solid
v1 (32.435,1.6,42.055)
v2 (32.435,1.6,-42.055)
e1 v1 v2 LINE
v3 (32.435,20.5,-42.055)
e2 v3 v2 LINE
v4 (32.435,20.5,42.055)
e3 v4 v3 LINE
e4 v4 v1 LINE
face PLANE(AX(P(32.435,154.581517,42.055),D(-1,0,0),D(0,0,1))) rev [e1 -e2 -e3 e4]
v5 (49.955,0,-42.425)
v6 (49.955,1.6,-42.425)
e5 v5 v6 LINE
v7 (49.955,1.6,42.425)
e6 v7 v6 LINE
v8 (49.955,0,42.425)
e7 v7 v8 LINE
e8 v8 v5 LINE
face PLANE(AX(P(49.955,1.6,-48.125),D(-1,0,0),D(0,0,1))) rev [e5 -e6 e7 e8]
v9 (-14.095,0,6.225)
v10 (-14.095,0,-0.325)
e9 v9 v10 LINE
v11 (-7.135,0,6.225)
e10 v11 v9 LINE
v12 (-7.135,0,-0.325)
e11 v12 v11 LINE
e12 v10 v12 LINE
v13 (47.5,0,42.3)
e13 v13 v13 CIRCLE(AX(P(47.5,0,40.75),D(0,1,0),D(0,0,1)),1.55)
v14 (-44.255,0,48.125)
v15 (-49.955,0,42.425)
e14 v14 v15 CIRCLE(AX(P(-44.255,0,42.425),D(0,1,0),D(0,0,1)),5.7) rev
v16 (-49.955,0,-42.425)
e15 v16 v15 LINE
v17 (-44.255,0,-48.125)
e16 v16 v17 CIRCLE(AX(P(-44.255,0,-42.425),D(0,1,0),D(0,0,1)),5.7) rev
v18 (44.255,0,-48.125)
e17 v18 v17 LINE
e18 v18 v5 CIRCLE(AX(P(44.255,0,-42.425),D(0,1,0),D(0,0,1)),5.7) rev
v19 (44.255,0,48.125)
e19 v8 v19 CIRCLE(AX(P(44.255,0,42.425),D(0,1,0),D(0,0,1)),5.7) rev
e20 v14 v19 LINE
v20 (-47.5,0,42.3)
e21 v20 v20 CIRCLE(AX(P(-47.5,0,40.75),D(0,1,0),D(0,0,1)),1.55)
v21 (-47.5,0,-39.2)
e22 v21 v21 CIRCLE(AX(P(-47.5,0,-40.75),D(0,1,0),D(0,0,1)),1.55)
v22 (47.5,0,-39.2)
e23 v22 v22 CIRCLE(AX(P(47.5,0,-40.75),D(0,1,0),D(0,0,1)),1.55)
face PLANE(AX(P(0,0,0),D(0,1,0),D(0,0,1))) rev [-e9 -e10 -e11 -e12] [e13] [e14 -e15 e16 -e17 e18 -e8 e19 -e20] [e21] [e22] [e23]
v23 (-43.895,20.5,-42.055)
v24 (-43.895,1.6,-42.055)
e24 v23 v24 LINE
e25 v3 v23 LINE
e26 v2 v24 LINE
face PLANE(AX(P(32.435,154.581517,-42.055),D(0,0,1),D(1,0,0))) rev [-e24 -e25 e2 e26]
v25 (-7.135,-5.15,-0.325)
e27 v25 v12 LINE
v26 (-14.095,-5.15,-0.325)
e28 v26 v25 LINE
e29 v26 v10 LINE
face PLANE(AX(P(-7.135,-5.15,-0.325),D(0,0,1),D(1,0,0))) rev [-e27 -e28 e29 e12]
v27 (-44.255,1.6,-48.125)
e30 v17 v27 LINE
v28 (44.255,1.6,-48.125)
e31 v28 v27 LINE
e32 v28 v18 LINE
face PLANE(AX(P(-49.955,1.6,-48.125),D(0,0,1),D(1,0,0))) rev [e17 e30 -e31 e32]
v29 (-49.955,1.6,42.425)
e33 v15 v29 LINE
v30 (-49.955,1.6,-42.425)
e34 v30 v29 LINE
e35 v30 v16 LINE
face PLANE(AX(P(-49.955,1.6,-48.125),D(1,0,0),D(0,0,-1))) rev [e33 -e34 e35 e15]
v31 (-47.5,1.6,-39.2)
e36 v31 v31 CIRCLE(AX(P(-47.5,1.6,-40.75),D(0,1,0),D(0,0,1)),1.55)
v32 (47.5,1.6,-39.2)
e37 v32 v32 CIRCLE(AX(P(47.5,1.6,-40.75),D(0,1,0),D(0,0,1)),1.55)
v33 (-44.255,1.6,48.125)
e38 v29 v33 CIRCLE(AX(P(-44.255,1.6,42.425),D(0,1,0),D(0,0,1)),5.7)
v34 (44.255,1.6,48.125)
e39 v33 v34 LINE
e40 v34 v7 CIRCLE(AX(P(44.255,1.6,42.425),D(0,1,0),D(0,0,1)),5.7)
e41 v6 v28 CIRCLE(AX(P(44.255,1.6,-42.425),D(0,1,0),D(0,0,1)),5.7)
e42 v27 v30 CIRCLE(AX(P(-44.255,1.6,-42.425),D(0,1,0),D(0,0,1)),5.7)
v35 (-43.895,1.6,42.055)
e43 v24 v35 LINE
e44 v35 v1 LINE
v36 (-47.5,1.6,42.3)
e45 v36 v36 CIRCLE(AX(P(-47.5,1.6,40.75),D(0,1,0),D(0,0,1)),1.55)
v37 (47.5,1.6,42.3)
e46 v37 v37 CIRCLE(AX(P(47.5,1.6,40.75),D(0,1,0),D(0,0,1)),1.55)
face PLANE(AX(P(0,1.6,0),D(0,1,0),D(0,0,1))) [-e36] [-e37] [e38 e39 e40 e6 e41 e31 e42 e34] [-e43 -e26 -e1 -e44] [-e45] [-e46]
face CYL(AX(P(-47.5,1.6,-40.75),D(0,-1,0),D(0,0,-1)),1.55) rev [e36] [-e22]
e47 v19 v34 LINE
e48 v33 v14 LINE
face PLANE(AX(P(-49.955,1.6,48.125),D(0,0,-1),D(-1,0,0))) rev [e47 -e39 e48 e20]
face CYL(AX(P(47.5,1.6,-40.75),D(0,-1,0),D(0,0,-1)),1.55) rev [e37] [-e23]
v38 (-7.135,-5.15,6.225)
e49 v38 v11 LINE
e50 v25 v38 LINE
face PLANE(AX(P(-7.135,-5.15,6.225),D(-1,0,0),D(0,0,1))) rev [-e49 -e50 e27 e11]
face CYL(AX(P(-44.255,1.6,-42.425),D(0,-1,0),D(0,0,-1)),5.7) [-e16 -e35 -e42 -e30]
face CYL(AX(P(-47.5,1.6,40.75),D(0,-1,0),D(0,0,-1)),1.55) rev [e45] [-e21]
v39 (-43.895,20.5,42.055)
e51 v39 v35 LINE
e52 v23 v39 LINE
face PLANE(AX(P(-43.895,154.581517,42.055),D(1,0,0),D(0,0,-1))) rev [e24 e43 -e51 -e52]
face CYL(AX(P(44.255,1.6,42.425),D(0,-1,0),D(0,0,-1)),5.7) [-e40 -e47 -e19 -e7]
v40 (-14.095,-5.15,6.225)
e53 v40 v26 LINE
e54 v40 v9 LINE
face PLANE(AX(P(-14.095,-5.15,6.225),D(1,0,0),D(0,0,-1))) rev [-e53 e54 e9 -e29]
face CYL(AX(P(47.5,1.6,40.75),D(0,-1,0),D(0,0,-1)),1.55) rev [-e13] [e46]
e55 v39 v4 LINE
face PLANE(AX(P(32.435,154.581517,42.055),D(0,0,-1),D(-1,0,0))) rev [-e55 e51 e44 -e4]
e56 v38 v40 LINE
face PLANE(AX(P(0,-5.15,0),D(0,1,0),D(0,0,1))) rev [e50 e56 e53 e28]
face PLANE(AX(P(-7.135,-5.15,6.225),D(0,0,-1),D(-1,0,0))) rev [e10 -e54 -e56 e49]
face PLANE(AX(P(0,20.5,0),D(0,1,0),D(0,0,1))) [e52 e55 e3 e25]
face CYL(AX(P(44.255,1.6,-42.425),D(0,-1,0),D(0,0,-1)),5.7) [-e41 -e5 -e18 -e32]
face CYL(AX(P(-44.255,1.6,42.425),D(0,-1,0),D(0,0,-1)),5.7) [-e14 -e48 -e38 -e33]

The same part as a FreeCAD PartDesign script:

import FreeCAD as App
import Part
import Sketcher

V = App.Vector
Q = App.Units.Quantity


def edges_at(feature, points):
    """Names of the edges that pass closest to the given points."""
    edges = feature.Shape.Edges
    near = lambda p: min(range(len(edges)), key=lambda i: edges[i].distToShape(Part.Vertex(*p))[0])
    return sorted({f"Edge{near(p) + 1}" for p in points})


def add_polygon(sketch, points):
    """Adds a closed chain of lines whose ends are joined by coincident constraints."""
    first, n = sketch.GeometryCount, len(points)
    for a, b in zip(points, points[1:] + points[:1]):
        sketch.addGeometry(Part.LineSegment(App.Vector(*a, 0), App.Vector(*b, 0)), False)
    for i in range(n):
        sketch.addConstraint(Sketcher.Constraint("Coincident", first + i, 2, first + (i + 1) % n, 1))

doc = App.newDocument("Part")
params = doc.addObject("Spreadsheet::Sheet", "Params")
for row, (alias, value) in enumerate([
    ("sketch1_diameter", "3.1 mm"),
    ("sketch1_width", "99.91 mm"),
    ("sketch1_height", "96.25 mm"),
    ("pad1_length", "1.6 mm"),
    ("fillet_radius", "5.7 mm"),
    ("sketch2_width", "76.33 mm"),
    ("sketch2_height", "84.11 mm"),
    ("pad2_length", "18.9 mm"),
    ("sketch3_width", "6.96 mm"),
    ("sketch3_height", "6.55 mm"),
    ("pad3_length", "5.15 mm"),
], start=1):
    params.set(f"A{row}", alias)
    params.set(f"B{row}", "=" + value)
    params.setAlias(f"B{row}", alias)

body = doc.addObject("PartDesign::Body", "Body")

# Sketch on XZ plane
sketch1 = body.newObject("Sketcher::SketchObject", "Sketch")
sketch1.AttachmentSupport = (doc.getObject("XZ_Plane"), [""])
sketch1.MapMode = "FlatFace"
add_polygon(sketch1, [(-49.955, -48.125), (-49.955, 48.125), (49.955, 48.125), (49.955, -48.125)])  # lines 0-3
sketch1.addGeometry(Part.Circle(V(-47.5, 40.75, 0), V(0, 0, 1), 1.55), False)  # 4
sketch1.addGeometry(Part.Circle(V(47.5, 40.75, 0), V(0, 0, 1), 1.55), False)  # 5
sketch1.addGeometry(Part.Circle(V(-47.5, -40.75, 0), V(0, 0, 1), 1.55), False)  # 6
sketch1.addGeometry(Part.Circle(V(47.5, -40.75, 0), V(0, 0, 1), 1.55), False)  # 7
sketch1.addConstraint(Sketcher.Constraint("Vertical", 0))
sketch1.addConstraint(Sketcher.Constraint("Horizontal", 1))
sketch1.addConstraint(Sketcher.Constraint("Vertical", 2))
sketch1.addConstraint(Sketcher.Constraint("Horizontal", 3))
sketch1.addConstraint(Sketcher.Constraint("Equal", 4, 5))
sketch1.addConstraint(Sketcher.Constraint("Equal", 5, 6))
sketch1.addConstraint(Sketcher.Constraint("Equal", 6, 7))
sketch1.addConstraint(Sketcher.Constraint("Symmetric", 5, 3, 6, 3, -1, 1))
sketch1.addConstraint(Sketcher.Constraint("Symmetric", 4, 3, 7, 3, -1, 1))
sketch1.addConstraint(Sketcher.Constraint("Symmetric", 0, 2, 2, 2, -1, 1))
sketch1.addConstraint(Sketcher.Constraint("Symmetric", 4, 3, 5, 3, -2))
sketch1.addConstraint(Sketcher.Constraint("Diameter", 4, Q("3.1 mm")))
sketch1.addConstraint(Sketcher.Constraint("DistanceX", 4, 3, 5, 3, Q("95 mm")))
sketch1.addConstraint(Sketcher.Constraint("DistanceX", 1, 1, 1, 2, Q("99.91 mm")))
sketch1.addConstraint(Sketcher.Constraint("DistanceY", 0, 1, 0, 2, Q("96.25 mm")))
sketch1.addConstraint(Sketcher.Constraint("DistanceY", 6, 3, 4, 3, Q("81.5 mm")))
sketch1.setExpression("Constraints[15]", "Params.sketch1_diameter")
sketch1.setExpression("Constraints[17]", "Params.sketch1_width")
sketch1.setExpression("Constraints[18]", "Params.sketch1_height")
pad1 = body.newObject("PartDesign::Pad", "Pad")
pad1.Profile = sketch1
pad1.setExpression("Length", "Params.pad1_length")
pad1.Reversed = True
doc.recompute()

fillet = body.newObject("PartDesign::Fillet", "Fillet")
fillet.Base = (pad1, edges_at(pad1, [
    (-49.955, 0.8, -48.125),
    (49.955, 0.8, -48.125),
    (49.955, 0.8, 48.125),
    (-49.955, 0.8, 48.125),
]))
fillet.setExpression("Radius", "Params.fillet_radius")

# Sketch on XZ plane
sketch2 = body.newObject("Sketcher::SketchObject", "Sketch001")
sketch2.AttachmentSupport = (doc.getObject("XZ_Plane"), [""])
sketch2.MapMode = "FlatFace"
sketch2.AttachmentOffset = App.Placement(V(0, 0, -1.6), App.Rotation())
add_polygon(sketch2, [(-43.895, -42.055), (-43.895, 42.055), (32.435, 42.055), (32.435, -42.055)])  # lines 0-3
sketch2.addConstraint(Sketcher.Constraint("Vertical", 0))
sketch2.addConstraint(Sketcher.Constraint("Horizontal", 1))
sketch2.addConstraint(Sketcher.Constraint("Vertical", 2))
sketch2.addConstraint(Sketcher.Constraint("Horizontal", 3))
sketch2.addConstraint(Sketcher.Constraint("DistanceX", 1, 1, 1, 2, Q("76.33 mm")))
sketch2.addConstraint(Sketcher.Constraint("DistanceY", 0, 1, 0, 2, Q("84.11 mm")))
sketch2.addConstraint(Sketcher.Constraint("DistanceX", 0, 2, -1, 1, Q("43.895 mm")))
sketch2.addConstraint(Sketcher.Constraint("DistanceY", -1, 1, 0, 2, Q("42.055 mm")))
sketch2.setExpression("Constraints[8]", "Params.sketch2_width")
sketch2.setExpression("Constraints[9]", "Params.sketch2_height")
pad2 = body.newObject("PartDesign::Pad", "Pad001")
pad2.Profile = sketch2
pad2.setExpression("Length", "Params.pad2_length")
pad2.Reversed = True

# Sketch on XZ plane
sketch3 = body.newObject("Sketcher::SketchObject", "Sketch002")
sketch3.AttachmentSupport = (doc.getObject("XZ_Plane"), [""])
sketch3.MapMode = "FlatFace"
add_polygon(sketch3, [(-14.095, 6.225), (-14.095, -0.325), (-7.135, -0.325), (-7.135, 6.225)])  # lines 0-3
sketch3.addConstraint(Sketcher.Constraint("Vertical", 0))
sketch3.addConstraint(Sketcher.Constraint("Horizontal", 1))
sketch3.addConstraint(Sketcher.Constraint("Vertical", 2))
sketch3.addConstraint(Sketcher.Constraint("Horizontal", 3))
sketch3.addConstraint(Sketcher.Constraint("DistanceX", 1, 1, 1, 2, Q("6.96 mm")))
sketch3.addConstraint(Sketcher.Constraint("DistanceY", 0, 2, 0, 1, Q("6.55 mm")))
sketch3.addConstraint(Sketcher.Constraint("DistanceX", 0, 2, -1, 1, Q("14.095 mm")))
sketch3.addConstraint(Sketcher.Constraint("DistanceY", 0, 2, -1, 1, Q("0.325 mm")))
sketch3.setExpression("Constraints[8]", "Params.sketch3_width")
sketch3.setExpression("Constraints[9]", "Params.sketch3_height")
pad3 = body.newObject("PartDesign::Pad", "Pad002")
pad3.Profile = sketch3
pad3.setExpression("Length", "Params.pad3_length")

doc.recompute()
